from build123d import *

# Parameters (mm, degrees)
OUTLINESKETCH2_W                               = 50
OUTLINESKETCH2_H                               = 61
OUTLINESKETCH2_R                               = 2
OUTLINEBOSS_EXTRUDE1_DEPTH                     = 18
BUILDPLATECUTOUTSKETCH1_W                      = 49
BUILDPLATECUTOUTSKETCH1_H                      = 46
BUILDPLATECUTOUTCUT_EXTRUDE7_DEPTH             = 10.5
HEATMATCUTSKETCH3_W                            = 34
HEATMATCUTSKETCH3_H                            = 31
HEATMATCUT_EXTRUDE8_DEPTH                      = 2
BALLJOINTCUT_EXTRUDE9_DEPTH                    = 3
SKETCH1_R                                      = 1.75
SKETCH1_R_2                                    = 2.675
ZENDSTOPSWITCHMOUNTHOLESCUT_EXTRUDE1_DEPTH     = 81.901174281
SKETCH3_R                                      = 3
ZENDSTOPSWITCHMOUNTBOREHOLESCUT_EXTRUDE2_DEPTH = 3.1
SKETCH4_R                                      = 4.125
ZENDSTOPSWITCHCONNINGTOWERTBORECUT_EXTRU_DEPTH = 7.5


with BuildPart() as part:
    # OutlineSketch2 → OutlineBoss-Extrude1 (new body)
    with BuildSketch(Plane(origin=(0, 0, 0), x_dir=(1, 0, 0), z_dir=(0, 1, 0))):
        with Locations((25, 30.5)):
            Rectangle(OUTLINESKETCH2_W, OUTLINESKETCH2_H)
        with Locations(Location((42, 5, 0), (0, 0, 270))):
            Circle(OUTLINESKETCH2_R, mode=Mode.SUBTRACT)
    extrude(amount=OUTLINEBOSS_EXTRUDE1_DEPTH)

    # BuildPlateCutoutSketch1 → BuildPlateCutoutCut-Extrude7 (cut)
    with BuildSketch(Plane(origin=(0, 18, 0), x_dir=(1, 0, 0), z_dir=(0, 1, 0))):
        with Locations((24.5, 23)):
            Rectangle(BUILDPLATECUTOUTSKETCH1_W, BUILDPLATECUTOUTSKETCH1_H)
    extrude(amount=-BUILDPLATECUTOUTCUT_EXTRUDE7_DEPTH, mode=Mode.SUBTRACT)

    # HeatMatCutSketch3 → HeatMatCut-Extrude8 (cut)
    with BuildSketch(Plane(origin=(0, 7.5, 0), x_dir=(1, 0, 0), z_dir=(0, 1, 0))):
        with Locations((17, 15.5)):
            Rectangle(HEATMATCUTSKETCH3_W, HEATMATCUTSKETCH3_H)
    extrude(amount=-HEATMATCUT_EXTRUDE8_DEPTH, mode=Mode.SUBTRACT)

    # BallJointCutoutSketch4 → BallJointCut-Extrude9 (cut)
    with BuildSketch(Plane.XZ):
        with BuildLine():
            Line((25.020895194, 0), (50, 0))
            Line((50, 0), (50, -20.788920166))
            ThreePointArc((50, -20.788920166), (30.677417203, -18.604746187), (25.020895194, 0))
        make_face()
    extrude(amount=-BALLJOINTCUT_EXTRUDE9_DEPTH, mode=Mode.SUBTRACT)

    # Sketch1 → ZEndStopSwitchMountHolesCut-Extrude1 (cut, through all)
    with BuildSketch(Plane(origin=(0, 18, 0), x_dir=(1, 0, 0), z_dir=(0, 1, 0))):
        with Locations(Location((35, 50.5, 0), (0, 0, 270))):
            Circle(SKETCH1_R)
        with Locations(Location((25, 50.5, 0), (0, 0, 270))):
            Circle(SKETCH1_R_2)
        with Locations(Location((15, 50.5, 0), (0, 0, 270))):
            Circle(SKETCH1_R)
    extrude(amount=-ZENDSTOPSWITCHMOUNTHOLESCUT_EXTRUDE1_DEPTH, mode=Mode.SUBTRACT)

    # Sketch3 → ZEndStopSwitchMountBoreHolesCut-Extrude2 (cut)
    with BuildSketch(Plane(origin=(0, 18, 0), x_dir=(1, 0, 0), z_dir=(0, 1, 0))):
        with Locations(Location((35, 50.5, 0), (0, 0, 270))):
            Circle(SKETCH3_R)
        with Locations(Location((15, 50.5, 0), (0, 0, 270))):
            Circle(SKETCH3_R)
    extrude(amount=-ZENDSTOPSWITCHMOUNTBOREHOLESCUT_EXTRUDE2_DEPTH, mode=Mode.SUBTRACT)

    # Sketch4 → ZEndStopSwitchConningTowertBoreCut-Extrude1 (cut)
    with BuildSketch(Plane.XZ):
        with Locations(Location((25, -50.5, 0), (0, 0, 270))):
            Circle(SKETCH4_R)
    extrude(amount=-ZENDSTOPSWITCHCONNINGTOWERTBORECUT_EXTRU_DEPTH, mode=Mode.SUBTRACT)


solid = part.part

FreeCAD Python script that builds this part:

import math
import FreeCAD as App
import Part
import Sketcher
from FreeCAD import Vector
Q = App.Units.Quantity

doc = App.newDocument("Part")
body = doc.addObject("PartDesign::Body", "Body")

# Sketch on XZ plane
sketch1 = body.newObject("Sketcher::SketchObject", "Sketch")
sketch1.AttachmentSupport = (doc.getObject("XZ_Plane"), [""])
sketch1.MapMode = "FlatFace"
sketch1.addGeometry(Part.LineSegment(Vector(0, -61, 0), Vector(0, 0, 0)), False)
sketch1.addGeometry(Part.LineSegment(Vector(0, 0, 0), Vector(50, 0, 0)), False)
sketch1.addGeometry(Part.LineSegment(Vector(50, 0, 0), Vector(50, -61, 0)), False)
sketch1.addGeometry(Part.LineSegment(Vector(50, -61, 0), Vector(0, -61, 0)), False)
sketch1.addGeometry(Part.Circle(Vector(42, -5, 0), Vector(0, 0, 1), 2), False)
sketch1.addConstraint(Sketcher.Constraint("Coincident", 0, 2, 1, 1))
sketch1.addConstraint(Sketcher.Constraint("Coincident", 1, 2, 2, 1))
sketch1.addConstraint(Sketcher.Constraint("Coincident", 2, 2, 3, 1))
sketch1.addConstraint(Sketcher.Constraint("Coincident", 3, 2, 0, 1))
sketch1.addConstraint(Sketcher.Constraint("Vertical", 0))
sketch1.addConstraint(Sketcher.Constraint("Horizontal", 1))
sketch1.addConstraint(Sketcher.Constraint("Vertical", 2))
sketch1.addConstraint(Sketcher.Constraint("Horizontal", 3))
sketch1.addConstraint(Sketcher.Constraint("Coincident", 0, 2, -1, 1))
sketch1.addConstraint(Sketcher.Constraint("Diameter", 4, Q("4 mm")))
sketch1.addConstraint(Sketcher.Constraint("DistanceX", 1, 1, 1, 2, Q("50 mm")))
sketch1.addConstraint(Sketcher.Constraint("DistanceY", 0, 1, 0, 2, Q("61 mm")))
sketch1.addConstraint(Sketcher.Constraint("DistanceX", -1, 1, 4, 3, Q("42 mm")))
sketch1.addConstraint(Sketcher.Constraint("DistanceY", 4, 3, -1, 1, Q("5 mm")))
pad1 = body.newObject("PartDesign::Pad", "Pad")
pad1.Profile = sketch1
pad1.Length = 18
pad1.Reversed = True

# Sketch on XZ plane
sketch2 = body.newObject("Sketcher::SketchObject", "Sketch001")
sketch2.AttachmentSupport = (doc.getObject("XZ_Plane"), [""])
sketch2.MapMode = "FlatFace"
sketch2.AttachmentOffset = App.Placement(Vector(0, 0, -18), App.Rotation())
sketch2.addGeometry(Part.LineSegment(Vector(0, -46, 0), Vector(0, 0, 0)), False)
sketch2.addGeometry(Part.LineSegment(Vector(0, 0, 0), Vector(49, 0, 0)), False)
sketch2.addGeometry(Part.LineSegment(Vector(49, 0, 0), Vector(49, -46, 0)), False)
sketch2.addGeometry(Part.LineSegment(Vector(49, -46, 0), Vector(0, -46, 0)), False)
sketch2.addConstraint(Sketcher.Constraint("Coincident", 0, 2, 1, 1))
sketch2.addConstraint(Sketcher.Constraint("Coincident", 1, 2, 2, 1))
sketch2.addConstraint(Sketcher.Constraint("Coincident", 2, 2, 3, 1))
sketch2.addConstraint(Sketcher.Constraint("Coincident", 3, 2, 0, 1))
sketch2.addConstraint(Sketcher.Constraint("Vertical", 0))
sketch2.addConstraint(Sketcher.Constraint("Horizontal", 1))
sketch2.addConstraint(Sketcher.Constraint("Vertical", 2))
sketch2.addConstraint(Sketcher.Constraint("Horizontal", 3))
sketch2.addConstraint(Sketcher.Constraint("Coincident", 0, 2, -1, 1))
sketch2.addConstraint(Sketcher.Constraint("DistanceX", 1, 1, 1, 2, Q("49 mm")))
sketch2.addConstraint(Sketcher.Constraint("DistanceY", 0, 1, 0, 2, Q("46 mm")))
pocket1 = body.newObject("PartDesign::Pocket", "Pocket")
pocket1.Profile = sketch2
pocket1.Length = 10.5
pocket1.Reversed = True

# Sketch on XZ plane
sketch3 = body.newObject("Sketcher::SketchObject", "Sketch002")
sketch3.AttachmentSupport = (doc.getObject("XZ_Plane"), [""])
sketch3.MapMode = "FlatFace"
sketch3.AttachmentOffset = App.Placement(Vector(0, 0, -7.5), App.Rotation())
sketch3.addGeometry(Part.LineSegment(Vector(0, -31, 0), Vector(0, 0, 0)), False)
sketch3.addGeometry(Part.LineSegment(Vector(0, 0, 0), Vector(34, 0, 0)), False)
sketch3.addGeometry(Part.LineSegment(Vector(34, 0, 0), Vector(34, -31, 0)), False)
sketch3.addGeometry(Part.LineSegment(Vector(34, -31, 0), Vector(0, -31, 0)), False)
sketch3.addConstraint(Sketcher.Constraint("Coincident", 0, 2, 1, 1))
sketch3.addConstraint(Sketcher.Constraint("Coincident", 1, 2, 2, 1))
sketch3.addConstraint(Sketcher.Constraint("Coincident", 2, 2, 3, 1))
sketch3.addConstraint(Sketcher.Constraint("Coincident", 3, 2, 0, 1))
sketch3.addConstraint(Sketcher.Constraint("Vertical", 0))
sketch3.addConstraint(Sketcher.Constraint("Horizontal", 1))
sketch3.addConstraint(Sketcher.Constraint("Vertical", 2))
sketch3.addConstraint(Sketcher.Constraint("Horizontal", 3))
sketch3.addConstraint(Sketcher.Constraint("Coincident", 0, 2, -1, 1))
sketch3.addConstraint(Sketcher.Constraint("DistanceX", 1, 1, 1, 2, Q("34 mm")))
sketch3.addConstraint(Sketcher.Constraint("DistanceY", 0, 1, 0, 2, Q("31 mm")))
pocket2 = body.newObject("PartDesign::Pocket", "Pocket001")
pocket2.Profile = sketch3
pocket2.Length = 2
pocket2.Reversed = True

# Sketch on XZ plane
sketch4 = body.newObject("Sketcher::SketchObject", "Sketch003")
sketch4.AttachmentSupport = (doc.getObject("XZ_Plane"), [""])
sketch4.MapMode = "FlatFace"
sketch4.addGeometry(Part.LineSegment(Vector(50, 0, 0), Vector(25.020895, 0, 0)), False)
sketch4.addGeometry(Part.ArcOfCircle(Part.Circle(Vector(42, -5, 0), Vector(0, 0, 1), 17.7), math.radians(163.591374), math.radians(296.870623)), False)
sketch4.addGeometry(Part.LineSegment(Vector(50, -20.78892, 0), Vector(50, 0, 0)), False)
sketch4.addConstraint(Sketcher.Constraint("Coincident", 0, 2, 1, 1))
sketch4.addConstraint(Sketcher.Constraint("Coincident", 1, 2, 2, 1))
sketch4.addConstraint(Sketcher.Constraint("Coincident", 2, 2, 0, 1))
sketch4.addConstraint(Sketcher.Constraint("Horizontal", 0))
sketch4.addConstraint(Sketcher.Constraint("Vertical", 2))
sketch4.addConstraint(Sketcher.Constraint("PointOnObject", 0, 2, -1))
sketch4.addConstraint(Sketcher.Constraint("Radius", 1, Q("17.7 mm")))
sketch4.addConstraint(Sketcher.Constraint("DistanceX", -1, 1, 1, 3, Q("42 mm")))
sketch4.addConstraint(Sketcher.Constraint("DistanceY", 1, 3, -1, 1, Q("5 mm")))
sketch4.addConstraint(Sketcher.Constraint("DistanceX", -1, 1, 1, 2, Q("50 mm")))
pocket3 = body.newObject("PartDesign::Pocket", "Pocket002")
pocket3.Profile = sketch4
pocket3.Length = 3

# Sketch on XZ plane
sketch5 = body.newObject("Sketcher::SketchObject", "Sketch004")
sketch5.AttachmentSupport = (doc.getObject("XZ_Plane"), [""])
sketch5.MapMode = "FlatFace"
sketch5.AttachmentOffset = App.Placement(Vector(0, 0, -18), App.Rotation())
sketch5.addGeometry(Part.Circle(Vector(35, -50.5, 0), Vector(0, 0, 1), 1.75), False)
sketch5.addGeometry(Part.Circle(Vector(25, -50.5, 0), Vector(0, 0, 1), 2.675), False)
sketch5.addGeometry(Part.Circle(Vector(15, -50.5, 0), Vector(0, 0, 1), 1.75), False)
sketch5.addConstraint(Sketcher.Constraint("Equal", 0, 2))
sketch5.addConstraint(Sketcher.Constraint("Horizontal", 0, 3, 1, 3))
sketch5.addConstraint(Sketcher.Constraint("Horizontal", 1, 3, 2, 3))
sketch5.addConstraint(Sketcher.Constraint("Diameter", 0, Q("3.5 mm")))
sketch5.addConstraint(Sketcher.Constraint("Diameter", 1, Q("5.35 mm")))
sketch5.addConstraint(Sketcher.Constraint("DistanceX", -1, 1, 0, 3, Q("35 mm")))
sketch5.addConstraint(Sketcher.Constraint("DistanceX", -1, 1, 1, 3, Q("25 mm")))
sketch5.addConstraint(Sketcher.Constraint("DistanceX", -1, 1, 2, 3, Q("15 mm")))
sketch5.addConstraint(Sketcher.Constraint("DistanceY", 0, 3, -1, 1, Q("50.5 mm")))
pocket4 = body.newObject("PartDesign::Pocket", "Pocket003")
pocket4.Profile = sketch5
pocket4.Type = "ThroughAll"
pocket4.Reversed = True

# Sketch on XZ plane
sketch6 = body.newObject("Sketcher::SketchObject", "Sketch005")
sketch6.AttachmentSupport = (doc.getObject("XZ_Plane"), [""])
sketch6.MapMode = "FlatFace"
sketch6.AttachmentOffset = App.Placement(Vector(0, 0, -18), App.Rotation())
sketch6.addGeometry(Part.Circle(Vector(35, -50.5, 0), Vector(0, 0, 1), 3), False)
sketch6.addGeometry(Part.Circle(Vector(15, -50.5, 0), Vector(0, 0, 1), 3), False)
sketch6.addConstraint(Sketcher.Constraint("Equal", 0, 1))
sketch6.addConstraint(Sketcher.Constraint("Horizontal", 0, 3, 1, 3))
sketch6.addConstraint(Sketcher.Constraint("Diameter", 0, Q("6 mm")))
sketch6.addConstraint(Sketcher.Constraint("DistanceX", -1, 1, 0, 3, Q("35 mm")))
sketch6.addConstraint(Sketcher.Constraint("DistanceX", -1, 1, 1, 3, Q("15 mm")))
sketch6.addConstraint(Sketcher.Constraint("DistanceY", 0, 3, -1, 1, Q("50.5 mm")))
pocket5 = body.newObject("PartDesign::Pocket", "Pocket004")
pocket5.Profile = sketch6
pocket5.Length = 3.1
pocket5.Reversed = True

# Sketch on XZ plane
sketch7 = body.newObject("Sketcher::SketchObject", "Sketch006")
sketch7.AttachmentSupport = (doc.getObject("XZ_Plane"), [""])
sketch7.MapMode = "FlatFace"
sketch7.addGeometry(Part.Circle(Vector(25, -50.5, 0), Vector(0, 0, 1), 4.125), False)
sketch7.addConstraint(Sketcher.Constraint("Diameter", 0, Q("8.25 mm")))
sketch7.addConstraint(Sketcher.Constraint("DistanceX", -1, 1, 0, 3, Q("25 mm")))
sketch7.addConstraint(Sketcher.Constraint("DistanceY", 0, 3, -1, 1, Q("50.5 mm")))
pocket6 = body.newObject("PartDesign::Pocket", "Pocket005")
pocket6.Profile = sketch7
pocket6.Length = 7.5

doc.recompute()
